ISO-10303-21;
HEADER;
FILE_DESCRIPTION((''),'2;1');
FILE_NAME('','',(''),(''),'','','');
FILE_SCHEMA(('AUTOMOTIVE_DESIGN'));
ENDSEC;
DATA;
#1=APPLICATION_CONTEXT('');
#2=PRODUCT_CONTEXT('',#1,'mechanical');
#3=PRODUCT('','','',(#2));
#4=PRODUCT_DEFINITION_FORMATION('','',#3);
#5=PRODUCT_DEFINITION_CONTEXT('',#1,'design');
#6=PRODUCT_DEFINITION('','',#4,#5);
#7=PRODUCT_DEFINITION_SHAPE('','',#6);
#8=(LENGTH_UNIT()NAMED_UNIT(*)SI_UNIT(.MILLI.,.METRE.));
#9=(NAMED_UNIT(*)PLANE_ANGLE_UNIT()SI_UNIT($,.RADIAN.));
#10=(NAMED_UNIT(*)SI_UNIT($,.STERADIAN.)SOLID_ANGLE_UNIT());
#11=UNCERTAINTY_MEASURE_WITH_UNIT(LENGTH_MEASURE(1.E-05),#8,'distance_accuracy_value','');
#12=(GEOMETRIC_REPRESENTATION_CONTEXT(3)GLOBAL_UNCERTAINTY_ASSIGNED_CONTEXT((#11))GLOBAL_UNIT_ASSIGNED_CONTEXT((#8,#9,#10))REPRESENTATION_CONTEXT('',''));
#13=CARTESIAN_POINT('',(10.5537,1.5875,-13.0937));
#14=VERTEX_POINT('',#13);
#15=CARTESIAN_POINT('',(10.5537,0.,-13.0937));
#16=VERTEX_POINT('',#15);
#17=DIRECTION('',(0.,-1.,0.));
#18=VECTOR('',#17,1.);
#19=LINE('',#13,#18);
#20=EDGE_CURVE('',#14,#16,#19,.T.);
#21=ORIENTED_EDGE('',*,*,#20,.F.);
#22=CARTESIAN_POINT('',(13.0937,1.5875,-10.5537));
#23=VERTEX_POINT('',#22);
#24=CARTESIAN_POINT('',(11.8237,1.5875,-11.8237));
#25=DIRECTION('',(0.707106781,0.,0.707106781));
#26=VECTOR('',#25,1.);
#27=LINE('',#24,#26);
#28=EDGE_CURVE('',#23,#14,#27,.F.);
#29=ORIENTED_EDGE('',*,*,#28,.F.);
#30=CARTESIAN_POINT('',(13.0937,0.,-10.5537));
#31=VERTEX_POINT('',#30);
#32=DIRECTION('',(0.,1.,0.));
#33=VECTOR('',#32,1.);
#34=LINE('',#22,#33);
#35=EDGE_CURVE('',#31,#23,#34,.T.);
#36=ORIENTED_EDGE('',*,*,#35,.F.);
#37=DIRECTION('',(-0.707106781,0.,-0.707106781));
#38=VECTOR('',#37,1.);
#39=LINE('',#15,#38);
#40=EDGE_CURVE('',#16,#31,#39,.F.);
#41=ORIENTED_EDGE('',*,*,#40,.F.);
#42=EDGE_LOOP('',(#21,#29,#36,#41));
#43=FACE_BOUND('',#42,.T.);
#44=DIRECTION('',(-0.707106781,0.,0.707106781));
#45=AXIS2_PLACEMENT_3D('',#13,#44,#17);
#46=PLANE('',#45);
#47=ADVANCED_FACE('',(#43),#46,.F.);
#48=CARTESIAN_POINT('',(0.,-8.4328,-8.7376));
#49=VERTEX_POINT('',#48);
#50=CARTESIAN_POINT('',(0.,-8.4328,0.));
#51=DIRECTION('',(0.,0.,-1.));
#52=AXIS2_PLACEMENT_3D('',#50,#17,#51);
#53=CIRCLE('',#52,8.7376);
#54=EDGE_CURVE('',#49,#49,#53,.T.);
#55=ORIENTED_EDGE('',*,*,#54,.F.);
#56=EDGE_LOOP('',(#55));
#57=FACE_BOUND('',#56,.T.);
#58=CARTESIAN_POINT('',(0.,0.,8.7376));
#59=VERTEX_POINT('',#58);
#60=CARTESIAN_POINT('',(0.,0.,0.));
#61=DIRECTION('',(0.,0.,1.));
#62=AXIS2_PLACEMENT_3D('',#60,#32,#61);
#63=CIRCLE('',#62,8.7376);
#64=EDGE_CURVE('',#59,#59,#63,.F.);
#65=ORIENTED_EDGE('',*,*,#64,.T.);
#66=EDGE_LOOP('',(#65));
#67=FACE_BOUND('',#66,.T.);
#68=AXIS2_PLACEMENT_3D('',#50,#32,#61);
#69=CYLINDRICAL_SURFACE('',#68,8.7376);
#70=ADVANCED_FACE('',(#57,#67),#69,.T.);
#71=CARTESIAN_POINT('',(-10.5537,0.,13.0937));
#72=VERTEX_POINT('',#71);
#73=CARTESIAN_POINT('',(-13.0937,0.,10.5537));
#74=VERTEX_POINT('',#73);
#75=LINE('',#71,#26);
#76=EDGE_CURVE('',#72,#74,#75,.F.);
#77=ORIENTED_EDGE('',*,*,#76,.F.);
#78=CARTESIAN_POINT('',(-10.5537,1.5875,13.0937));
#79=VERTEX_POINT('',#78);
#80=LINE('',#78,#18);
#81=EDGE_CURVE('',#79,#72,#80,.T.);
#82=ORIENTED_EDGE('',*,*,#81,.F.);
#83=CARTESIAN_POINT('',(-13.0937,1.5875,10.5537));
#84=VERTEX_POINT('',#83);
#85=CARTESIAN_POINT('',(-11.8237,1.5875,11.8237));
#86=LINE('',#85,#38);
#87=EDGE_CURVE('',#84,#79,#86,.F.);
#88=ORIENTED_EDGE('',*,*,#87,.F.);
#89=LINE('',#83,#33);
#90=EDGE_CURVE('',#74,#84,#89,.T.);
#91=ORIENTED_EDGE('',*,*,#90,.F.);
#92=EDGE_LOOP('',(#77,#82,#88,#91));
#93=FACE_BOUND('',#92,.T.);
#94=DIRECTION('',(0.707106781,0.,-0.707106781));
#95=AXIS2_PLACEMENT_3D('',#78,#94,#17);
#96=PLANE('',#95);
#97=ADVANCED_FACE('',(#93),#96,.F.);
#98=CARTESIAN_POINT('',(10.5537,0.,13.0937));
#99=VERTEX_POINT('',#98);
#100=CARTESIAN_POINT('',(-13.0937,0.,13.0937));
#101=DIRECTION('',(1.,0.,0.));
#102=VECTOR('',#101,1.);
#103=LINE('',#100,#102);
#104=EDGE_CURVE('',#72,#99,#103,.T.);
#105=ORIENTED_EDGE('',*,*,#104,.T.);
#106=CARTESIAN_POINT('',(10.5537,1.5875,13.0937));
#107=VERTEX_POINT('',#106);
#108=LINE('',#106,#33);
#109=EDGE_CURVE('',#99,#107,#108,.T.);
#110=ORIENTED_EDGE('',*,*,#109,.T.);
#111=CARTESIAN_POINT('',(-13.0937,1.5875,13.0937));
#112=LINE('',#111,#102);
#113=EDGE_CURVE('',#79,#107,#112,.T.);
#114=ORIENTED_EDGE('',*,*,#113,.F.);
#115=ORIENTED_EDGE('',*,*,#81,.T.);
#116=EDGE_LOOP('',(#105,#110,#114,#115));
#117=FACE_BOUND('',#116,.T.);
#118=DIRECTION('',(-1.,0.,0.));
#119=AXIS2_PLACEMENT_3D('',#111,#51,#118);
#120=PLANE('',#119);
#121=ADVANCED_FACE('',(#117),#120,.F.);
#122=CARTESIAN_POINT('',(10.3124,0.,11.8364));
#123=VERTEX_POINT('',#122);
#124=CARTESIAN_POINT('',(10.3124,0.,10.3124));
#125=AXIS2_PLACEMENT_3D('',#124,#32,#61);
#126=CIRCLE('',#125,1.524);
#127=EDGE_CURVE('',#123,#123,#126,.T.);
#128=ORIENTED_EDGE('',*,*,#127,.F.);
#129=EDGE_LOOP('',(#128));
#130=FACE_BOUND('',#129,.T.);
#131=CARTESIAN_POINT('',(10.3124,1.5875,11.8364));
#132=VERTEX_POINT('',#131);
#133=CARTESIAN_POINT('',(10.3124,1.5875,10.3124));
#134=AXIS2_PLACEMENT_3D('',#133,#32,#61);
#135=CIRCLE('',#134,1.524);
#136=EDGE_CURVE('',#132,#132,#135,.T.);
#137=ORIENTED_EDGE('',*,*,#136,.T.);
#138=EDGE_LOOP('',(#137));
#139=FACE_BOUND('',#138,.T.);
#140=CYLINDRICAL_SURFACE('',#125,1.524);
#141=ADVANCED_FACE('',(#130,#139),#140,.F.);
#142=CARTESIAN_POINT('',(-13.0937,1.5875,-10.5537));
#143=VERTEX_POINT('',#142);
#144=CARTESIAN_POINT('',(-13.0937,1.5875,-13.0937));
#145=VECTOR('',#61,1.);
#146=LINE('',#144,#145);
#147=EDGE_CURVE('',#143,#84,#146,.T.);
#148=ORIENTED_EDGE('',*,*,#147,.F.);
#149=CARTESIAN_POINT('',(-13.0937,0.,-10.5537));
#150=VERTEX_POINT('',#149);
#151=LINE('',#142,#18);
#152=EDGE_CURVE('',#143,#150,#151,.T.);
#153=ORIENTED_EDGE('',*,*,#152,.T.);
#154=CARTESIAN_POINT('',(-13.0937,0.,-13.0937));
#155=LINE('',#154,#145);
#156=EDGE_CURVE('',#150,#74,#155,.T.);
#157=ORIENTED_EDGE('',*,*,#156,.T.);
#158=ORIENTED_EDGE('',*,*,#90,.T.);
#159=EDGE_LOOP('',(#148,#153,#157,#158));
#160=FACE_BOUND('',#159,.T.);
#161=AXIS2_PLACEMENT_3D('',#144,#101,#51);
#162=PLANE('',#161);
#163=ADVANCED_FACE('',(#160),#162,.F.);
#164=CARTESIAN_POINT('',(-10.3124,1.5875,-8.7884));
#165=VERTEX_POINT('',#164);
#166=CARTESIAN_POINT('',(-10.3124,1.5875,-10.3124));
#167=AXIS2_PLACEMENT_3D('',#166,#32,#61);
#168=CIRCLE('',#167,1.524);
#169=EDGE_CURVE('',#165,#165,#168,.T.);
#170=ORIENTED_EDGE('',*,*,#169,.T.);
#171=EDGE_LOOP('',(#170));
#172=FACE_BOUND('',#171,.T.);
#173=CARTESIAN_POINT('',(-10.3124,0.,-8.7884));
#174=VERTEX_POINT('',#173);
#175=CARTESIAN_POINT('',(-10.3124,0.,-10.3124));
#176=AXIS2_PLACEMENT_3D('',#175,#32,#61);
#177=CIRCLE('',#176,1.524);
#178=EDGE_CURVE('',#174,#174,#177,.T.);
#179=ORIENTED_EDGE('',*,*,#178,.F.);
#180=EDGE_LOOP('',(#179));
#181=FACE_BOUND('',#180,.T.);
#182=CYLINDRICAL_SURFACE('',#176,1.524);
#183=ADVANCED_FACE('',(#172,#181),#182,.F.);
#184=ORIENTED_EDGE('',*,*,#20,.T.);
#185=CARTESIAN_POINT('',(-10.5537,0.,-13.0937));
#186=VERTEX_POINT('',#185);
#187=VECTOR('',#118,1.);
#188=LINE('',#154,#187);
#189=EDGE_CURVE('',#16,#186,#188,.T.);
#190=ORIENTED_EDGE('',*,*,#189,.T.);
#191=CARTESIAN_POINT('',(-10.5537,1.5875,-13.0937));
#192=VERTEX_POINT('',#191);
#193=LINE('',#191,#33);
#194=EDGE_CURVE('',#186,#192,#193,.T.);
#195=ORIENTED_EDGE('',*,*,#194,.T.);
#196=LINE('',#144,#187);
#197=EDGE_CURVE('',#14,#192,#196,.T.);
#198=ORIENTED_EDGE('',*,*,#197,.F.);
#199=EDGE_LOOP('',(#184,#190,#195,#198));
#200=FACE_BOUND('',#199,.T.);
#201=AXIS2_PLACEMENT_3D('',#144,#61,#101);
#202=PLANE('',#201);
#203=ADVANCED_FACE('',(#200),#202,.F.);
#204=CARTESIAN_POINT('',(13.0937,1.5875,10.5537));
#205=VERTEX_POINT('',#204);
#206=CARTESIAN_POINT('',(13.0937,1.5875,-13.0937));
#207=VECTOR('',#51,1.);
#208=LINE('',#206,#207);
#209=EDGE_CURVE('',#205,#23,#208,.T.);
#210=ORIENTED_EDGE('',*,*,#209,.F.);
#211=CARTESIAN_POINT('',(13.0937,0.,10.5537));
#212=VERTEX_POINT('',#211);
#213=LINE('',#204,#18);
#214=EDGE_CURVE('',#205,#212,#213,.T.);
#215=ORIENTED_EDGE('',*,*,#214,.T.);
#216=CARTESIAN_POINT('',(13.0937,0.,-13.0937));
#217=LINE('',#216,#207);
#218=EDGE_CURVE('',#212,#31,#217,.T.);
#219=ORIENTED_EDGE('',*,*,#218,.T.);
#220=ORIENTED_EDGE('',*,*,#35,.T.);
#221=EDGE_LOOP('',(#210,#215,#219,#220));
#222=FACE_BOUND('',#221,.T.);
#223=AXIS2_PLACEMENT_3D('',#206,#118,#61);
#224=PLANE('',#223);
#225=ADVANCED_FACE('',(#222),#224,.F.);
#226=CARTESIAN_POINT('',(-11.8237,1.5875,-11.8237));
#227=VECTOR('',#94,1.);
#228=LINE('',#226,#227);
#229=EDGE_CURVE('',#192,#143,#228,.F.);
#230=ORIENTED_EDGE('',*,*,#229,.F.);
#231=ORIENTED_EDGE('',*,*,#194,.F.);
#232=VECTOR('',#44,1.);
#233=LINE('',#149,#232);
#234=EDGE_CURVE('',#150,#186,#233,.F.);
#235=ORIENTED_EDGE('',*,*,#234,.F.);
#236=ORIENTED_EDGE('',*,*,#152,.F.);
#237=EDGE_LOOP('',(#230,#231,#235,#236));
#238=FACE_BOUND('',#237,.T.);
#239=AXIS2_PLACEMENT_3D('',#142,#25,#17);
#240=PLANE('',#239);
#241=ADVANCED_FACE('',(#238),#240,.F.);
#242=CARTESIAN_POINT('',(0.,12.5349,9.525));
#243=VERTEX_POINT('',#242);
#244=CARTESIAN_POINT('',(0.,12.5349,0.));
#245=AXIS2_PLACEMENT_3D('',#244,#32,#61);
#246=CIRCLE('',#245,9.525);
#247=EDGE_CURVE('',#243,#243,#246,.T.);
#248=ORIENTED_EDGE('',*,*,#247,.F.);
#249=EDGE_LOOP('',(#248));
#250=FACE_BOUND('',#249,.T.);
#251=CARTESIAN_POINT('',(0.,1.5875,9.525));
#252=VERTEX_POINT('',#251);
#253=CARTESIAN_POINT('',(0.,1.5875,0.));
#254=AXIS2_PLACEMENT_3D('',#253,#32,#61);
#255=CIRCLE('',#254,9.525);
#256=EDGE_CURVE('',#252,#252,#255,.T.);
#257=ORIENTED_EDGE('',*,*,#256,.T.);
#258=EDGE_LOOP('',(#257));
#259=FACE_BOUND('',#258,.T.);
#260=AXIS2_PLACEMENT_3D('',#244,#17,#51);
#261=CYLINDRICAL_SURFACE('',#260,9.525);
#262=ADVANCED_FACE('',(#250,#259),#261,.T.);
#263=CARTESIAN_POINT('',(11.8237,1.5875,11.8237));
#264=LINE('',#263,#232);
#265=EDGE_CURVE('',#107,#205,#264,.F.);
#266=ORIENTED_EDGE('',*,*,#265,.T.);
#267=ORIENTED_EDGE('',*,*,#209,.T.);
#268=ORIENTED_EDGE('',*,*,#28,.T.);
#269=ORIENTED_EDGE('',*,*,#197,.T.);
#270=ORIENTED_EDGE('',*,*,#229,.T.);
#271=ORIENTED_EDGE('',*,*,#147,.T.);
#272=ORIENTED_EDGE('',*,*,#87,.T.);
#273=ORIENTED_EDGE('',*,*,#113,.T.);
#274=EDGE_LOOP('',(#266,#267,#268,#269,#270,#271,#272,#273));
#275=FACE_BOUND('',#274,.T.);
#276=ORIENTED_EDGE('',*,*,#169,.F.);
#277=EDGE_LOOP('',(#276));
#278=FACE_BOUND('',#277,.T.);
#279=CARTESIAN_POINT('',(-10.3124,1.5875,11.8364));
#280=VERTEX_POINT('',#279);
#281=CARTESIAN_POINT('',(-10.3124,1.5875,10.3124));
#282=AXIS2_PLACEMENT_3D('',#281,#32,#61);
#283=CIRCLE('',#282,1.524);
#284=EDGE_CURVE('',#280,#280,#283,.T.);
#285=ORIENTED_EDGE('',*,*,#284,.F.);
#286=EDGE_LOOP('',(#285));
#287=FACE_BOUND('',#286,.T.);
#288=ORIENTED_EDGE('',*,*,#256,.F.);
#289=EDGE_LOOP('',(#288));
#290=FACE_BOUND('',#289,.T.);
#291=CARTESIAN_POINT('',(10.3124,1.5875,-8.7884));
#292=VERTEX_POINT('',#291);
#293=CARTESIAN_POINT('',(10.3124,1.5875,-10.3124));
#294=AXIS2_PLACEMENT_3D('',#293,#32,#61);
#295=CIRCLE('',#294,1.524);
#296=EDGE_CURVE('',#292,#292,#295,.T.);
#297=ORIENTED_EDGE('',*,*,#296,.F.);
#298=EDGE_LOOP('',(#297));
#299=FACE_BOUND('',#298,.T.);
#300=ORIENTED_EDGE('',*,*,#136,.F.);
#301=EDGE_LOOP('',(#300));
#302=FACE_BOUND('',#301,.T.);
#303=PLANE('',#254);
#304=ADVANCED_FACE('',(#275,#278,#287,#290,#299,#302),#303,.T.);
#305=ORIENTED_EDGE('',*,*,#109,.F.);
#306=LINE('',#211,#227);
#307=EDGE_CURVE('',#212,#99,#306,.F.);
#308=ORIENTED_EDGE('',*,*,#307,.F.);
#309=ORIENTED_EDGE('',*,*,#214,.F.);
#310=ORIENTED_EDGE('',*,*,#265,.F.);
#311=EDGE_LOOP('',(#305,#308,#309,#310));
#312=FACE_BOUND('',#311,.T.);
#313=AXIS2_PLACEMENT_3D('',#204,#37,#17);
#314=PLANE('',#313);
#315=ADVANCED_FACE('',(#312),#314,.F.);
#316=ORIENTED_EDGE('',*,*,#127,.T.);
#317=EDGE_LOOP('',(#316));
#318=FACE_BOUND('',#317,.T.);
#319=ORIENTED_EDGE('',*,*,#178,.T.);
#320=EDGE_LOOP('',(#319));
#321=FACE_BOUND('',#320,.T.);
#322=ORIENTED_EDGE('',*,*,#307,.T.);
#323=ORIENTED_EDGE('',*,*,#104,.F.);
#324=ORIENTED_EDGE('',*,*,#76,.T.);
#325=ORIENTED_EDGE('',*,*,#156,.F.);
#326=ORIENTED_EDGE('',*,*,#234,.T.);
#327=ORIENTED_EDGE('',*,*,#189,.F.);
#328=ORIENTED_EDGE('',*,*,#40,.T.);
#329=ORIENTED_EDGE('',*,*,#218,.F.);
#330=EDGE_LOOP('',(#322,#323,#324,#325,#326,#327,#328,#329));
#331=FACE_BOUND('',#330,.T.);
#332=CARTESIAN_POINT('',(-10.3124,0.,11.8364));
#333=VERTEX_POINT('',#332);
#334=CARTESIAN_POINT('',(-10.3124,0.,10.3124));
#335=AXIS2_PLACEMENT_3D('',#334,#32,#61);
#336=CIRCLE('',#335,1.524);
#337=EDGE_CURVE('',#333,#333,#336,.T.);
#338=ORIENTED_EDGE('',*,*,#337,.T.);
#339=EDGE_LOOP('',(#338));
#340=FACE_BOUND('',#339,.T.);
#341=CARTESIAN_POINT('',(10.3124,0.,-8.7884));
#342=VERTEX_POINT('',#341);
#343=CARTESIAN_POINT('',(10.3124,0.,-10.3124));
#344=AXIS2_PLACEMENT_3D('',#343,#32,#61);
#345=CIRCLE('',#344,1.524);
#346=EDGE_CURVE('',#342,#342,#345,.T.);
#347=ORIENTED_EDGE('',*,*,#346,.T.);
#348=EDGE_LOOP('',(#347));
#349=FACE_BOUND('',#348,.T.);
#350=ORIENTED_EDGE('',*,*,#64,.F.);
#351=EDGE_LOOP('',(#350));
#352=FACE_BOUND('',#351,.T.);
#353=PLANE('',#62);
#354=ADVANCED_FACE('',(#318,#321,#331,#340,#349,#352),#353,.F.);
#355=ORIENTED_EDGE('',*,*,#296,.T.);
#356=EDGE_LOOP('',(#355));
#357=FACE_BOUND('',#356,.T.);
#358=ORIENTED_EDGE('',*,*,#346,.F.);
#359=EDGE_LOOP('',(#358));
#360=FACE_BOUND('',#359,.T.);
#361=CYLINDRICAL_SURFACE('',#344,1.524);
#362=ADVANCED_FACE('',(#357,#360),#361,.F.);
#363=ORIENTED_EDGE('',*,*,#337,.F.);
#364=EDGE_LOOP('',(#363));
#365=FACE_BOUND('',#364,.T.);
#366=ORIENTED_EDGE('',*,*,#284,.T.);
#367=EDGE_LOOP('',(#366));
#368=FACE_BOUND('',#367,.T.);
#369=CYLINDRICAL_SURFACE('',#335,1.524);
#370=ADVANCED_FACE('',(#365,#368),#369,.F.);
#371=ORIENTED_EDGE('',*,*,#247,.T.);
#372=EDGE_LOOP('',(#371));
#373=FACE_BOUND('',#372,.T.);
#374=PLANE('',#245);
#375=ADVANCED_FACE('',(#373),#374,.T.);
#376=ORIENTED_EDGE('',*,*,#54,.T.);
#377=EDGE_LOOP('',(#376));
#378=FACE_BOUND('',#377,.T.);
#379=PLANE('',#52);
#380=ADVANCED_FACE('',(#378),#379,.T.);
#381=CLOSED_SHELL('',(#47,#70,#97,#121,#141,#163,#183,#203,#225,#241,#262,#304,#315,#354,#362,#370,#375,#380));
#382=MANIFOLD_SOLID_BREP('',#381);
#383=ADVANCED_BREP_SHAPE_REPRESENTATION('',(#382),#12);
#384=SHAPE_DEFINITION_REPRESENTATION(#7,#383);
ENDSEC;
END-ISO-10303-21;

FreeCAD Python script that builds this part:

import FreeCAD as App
import Part
import Sketcher
from FreeCAD import Vector
Q = App.Units.Quantity


def edges_at(feature, points):
    """Names of the edges that pass closest to the given points."""
    edges = feature.Shape.Edges
    near = lambda p: min(range(len(edges)), key=lambda i: edges[i].distToShape(Part.Vertex(*p))[0])
    return sorted({f"Edge{near(p) + 1}" for p in points})


def add_polygon(sketch, points):
    """Adds a closed chain of lines whose ends are joined by coincident constraints."""
    first, n = sketch.GeometryCount, len(points)
    for a, b in zip(points, points[1:] + points[:1]):
        sketch.addGeometry(Part.LineSegment(App.Vector(*a, 0), App.Vector(*b, 0)), False)
    for i in range(n):
        sketch.addConstraint(Sketcher.Constraint("Coincident", first + i, 2, first + (i + 1) % n, 1))

doc = App.newDocument("Part")
body = doc.addObject("PartDesign::Body", "Body")

# Sketch on XZ plane
sketch1 = body.newObject("Sketcher::SketchObject", "Sketch")
sketch1.AttachmentSupport = (doc.getObject("XZ_Plane"), [""])
sketch1.MapMode = "FlatFace"
add_polygon(sketch1, [(-13, -13), (-13, 13), (13, 13), (13, -13)])  # lines 0-3
sketch1.addConstraint([
    Sketcher.Constraint("Vertical", 0),
    Sketcher.Constraint("Horizontal", 1),
    Sketcher.Constraint("Vertical", 2),
    Sketcher.Constraint("Horizontal", 3),
    Sketcher.Constraint("Symmetric", 0, 2, 2, 2, -1, 1),
    Sketcher.Constraint("Equal", 3, 0),
    Sketcher.Constraint("DistanceX", 1, 1, 1, 2, Q("1.031 in")),
])
pad1 = body.newObject("PartDesign::Pad", "Pad")
pad1.Profile = sketch1
pad1.Length = Q("0.0625 in")
pad1.Reversed = True
doc.recompute()

chamfer = body.newObject("PartDesign::Chamfer", "Chamfer")
chamfer.Base = (pad1, edges_at(pad1, [
    (13.094, 0.794, 13.094),
    (-13.094, 0.794, 13.094),
    (-13.094, 0.794, -13.094),
    (13.094, 0.794, -13.094),
]))
chamfer.Size = Q("0.1 in")

# Sketch on XZ plane
sketch2 = body.newObject("Sketcher::SketchObject", "Sketch001")
sketch2.AttachmentSupport = (doc.getObject("XZ_Plane"), [""])
sketch2.MapMode = "FlatFace"
sketch2.AttachmentOffset = App.Placement(Vector(0, 0, -0.0625 * 25.4), App.Rotation())
sketch2.addGeometry([
    Part.Circle(Vector(-10.3, -10.3, 0), Vector(0, 0, 1), 1.5),
    Part.Circle(Vector(10.3, -10.3, 0), Vector(0, 0, 1), 1.5),
    Part.Circle(Vector(10.3, 10.3, 0), Vector(0, 0, 1), 1.5),
    Part.Circle(Vector(-10.3, 10.3, 0), Vector(0, 0, 1), 1.5),
], False)
sketch2.addConstraint([
    Sketcher.Constraint("Equal", 0, 1),
    Sketcher.Constraint("Equal", 1, 2),
    Sketcher.Constraint("Equal", 2, 3),
    Sketcher.Constraint("Symmetric", 0, 3, 2, 3, -1, 1),
    Sketcher.Constraint("Symmetric", 1, 3, 3, 3, -1, 1),
    Sketcher.Constraint("Symmetric", 0, 3, 1, 3, -2),
    Sketcher.Constraint("Diameter", 0, Q("0.12 in")),
    Sketcher.Constraint("DistanceX", 0, 3, -1, 1, Q("0.406 in")),
    Sketcher.Constraint("DistanceY", 0, 3, -1, 1, Q("0.406 in")),
])
pocket1 = body.newObject("PartDesign::Pocket", "Pocket")
pocket1.Profile = sketch2
pocket1.Type = "ThroughAll"
pocket1.Reversed = True

# Sketch on XZ plane
sketch3 = body.newObject("Sketcher::SketchObject", "Sketch002")
sketch3.AttachmentSupport = (doc.getObject("XZ_Plane"), [""])
sketch3.MapMode = "FlatFace"
sketch3.AttachmentOffset = App.Placement(Vector(0, 0, -0.0625 * 25.4), App.Rotation())
sketch3.addGeometry(Part.Circle(Vector(0, 0, 0), Vector(0, 0, 1), 10), False)
sketch3.addConstraint([
    Sketcher.Constraint("Coincident", 0, 3, -1, 1),
    Sketcher.Constraint("Diameter", 0, Q("0.75 in")),
])
pad2 = body.newObject("PartDesign::Pad", "Pad001")
pad2.Profile = sketch3
pad2.Length = Q("0.431 in")
pad2.Reversed = True

# Sketch on XZ plane
sketch4 = body.newObject("Sketcher::SketchObject", "Sketch003")
sketch4.AttachmentSupport = (doc.getObject("XZ_Plane"), [""])
sketch4.MapMode = "FlatFace"
sketch4.addGeometry(Part.Circle(Vector(0, 0, 0), Vector(0, 0, 1), 9), False)
sketch4.addConstraint([
    Sketcher.Constraint("Coincident", 0, 3, -1, 1),
    Sketcher.Constraint("Diameter", 0, Q("0.688 in")),
])
pad3 = body.newObject("PartDesign::Pad", "Pad002")
pad3.Profile = sketch4
pad3.Length = Q("0.332 in")

doc.recompute()
